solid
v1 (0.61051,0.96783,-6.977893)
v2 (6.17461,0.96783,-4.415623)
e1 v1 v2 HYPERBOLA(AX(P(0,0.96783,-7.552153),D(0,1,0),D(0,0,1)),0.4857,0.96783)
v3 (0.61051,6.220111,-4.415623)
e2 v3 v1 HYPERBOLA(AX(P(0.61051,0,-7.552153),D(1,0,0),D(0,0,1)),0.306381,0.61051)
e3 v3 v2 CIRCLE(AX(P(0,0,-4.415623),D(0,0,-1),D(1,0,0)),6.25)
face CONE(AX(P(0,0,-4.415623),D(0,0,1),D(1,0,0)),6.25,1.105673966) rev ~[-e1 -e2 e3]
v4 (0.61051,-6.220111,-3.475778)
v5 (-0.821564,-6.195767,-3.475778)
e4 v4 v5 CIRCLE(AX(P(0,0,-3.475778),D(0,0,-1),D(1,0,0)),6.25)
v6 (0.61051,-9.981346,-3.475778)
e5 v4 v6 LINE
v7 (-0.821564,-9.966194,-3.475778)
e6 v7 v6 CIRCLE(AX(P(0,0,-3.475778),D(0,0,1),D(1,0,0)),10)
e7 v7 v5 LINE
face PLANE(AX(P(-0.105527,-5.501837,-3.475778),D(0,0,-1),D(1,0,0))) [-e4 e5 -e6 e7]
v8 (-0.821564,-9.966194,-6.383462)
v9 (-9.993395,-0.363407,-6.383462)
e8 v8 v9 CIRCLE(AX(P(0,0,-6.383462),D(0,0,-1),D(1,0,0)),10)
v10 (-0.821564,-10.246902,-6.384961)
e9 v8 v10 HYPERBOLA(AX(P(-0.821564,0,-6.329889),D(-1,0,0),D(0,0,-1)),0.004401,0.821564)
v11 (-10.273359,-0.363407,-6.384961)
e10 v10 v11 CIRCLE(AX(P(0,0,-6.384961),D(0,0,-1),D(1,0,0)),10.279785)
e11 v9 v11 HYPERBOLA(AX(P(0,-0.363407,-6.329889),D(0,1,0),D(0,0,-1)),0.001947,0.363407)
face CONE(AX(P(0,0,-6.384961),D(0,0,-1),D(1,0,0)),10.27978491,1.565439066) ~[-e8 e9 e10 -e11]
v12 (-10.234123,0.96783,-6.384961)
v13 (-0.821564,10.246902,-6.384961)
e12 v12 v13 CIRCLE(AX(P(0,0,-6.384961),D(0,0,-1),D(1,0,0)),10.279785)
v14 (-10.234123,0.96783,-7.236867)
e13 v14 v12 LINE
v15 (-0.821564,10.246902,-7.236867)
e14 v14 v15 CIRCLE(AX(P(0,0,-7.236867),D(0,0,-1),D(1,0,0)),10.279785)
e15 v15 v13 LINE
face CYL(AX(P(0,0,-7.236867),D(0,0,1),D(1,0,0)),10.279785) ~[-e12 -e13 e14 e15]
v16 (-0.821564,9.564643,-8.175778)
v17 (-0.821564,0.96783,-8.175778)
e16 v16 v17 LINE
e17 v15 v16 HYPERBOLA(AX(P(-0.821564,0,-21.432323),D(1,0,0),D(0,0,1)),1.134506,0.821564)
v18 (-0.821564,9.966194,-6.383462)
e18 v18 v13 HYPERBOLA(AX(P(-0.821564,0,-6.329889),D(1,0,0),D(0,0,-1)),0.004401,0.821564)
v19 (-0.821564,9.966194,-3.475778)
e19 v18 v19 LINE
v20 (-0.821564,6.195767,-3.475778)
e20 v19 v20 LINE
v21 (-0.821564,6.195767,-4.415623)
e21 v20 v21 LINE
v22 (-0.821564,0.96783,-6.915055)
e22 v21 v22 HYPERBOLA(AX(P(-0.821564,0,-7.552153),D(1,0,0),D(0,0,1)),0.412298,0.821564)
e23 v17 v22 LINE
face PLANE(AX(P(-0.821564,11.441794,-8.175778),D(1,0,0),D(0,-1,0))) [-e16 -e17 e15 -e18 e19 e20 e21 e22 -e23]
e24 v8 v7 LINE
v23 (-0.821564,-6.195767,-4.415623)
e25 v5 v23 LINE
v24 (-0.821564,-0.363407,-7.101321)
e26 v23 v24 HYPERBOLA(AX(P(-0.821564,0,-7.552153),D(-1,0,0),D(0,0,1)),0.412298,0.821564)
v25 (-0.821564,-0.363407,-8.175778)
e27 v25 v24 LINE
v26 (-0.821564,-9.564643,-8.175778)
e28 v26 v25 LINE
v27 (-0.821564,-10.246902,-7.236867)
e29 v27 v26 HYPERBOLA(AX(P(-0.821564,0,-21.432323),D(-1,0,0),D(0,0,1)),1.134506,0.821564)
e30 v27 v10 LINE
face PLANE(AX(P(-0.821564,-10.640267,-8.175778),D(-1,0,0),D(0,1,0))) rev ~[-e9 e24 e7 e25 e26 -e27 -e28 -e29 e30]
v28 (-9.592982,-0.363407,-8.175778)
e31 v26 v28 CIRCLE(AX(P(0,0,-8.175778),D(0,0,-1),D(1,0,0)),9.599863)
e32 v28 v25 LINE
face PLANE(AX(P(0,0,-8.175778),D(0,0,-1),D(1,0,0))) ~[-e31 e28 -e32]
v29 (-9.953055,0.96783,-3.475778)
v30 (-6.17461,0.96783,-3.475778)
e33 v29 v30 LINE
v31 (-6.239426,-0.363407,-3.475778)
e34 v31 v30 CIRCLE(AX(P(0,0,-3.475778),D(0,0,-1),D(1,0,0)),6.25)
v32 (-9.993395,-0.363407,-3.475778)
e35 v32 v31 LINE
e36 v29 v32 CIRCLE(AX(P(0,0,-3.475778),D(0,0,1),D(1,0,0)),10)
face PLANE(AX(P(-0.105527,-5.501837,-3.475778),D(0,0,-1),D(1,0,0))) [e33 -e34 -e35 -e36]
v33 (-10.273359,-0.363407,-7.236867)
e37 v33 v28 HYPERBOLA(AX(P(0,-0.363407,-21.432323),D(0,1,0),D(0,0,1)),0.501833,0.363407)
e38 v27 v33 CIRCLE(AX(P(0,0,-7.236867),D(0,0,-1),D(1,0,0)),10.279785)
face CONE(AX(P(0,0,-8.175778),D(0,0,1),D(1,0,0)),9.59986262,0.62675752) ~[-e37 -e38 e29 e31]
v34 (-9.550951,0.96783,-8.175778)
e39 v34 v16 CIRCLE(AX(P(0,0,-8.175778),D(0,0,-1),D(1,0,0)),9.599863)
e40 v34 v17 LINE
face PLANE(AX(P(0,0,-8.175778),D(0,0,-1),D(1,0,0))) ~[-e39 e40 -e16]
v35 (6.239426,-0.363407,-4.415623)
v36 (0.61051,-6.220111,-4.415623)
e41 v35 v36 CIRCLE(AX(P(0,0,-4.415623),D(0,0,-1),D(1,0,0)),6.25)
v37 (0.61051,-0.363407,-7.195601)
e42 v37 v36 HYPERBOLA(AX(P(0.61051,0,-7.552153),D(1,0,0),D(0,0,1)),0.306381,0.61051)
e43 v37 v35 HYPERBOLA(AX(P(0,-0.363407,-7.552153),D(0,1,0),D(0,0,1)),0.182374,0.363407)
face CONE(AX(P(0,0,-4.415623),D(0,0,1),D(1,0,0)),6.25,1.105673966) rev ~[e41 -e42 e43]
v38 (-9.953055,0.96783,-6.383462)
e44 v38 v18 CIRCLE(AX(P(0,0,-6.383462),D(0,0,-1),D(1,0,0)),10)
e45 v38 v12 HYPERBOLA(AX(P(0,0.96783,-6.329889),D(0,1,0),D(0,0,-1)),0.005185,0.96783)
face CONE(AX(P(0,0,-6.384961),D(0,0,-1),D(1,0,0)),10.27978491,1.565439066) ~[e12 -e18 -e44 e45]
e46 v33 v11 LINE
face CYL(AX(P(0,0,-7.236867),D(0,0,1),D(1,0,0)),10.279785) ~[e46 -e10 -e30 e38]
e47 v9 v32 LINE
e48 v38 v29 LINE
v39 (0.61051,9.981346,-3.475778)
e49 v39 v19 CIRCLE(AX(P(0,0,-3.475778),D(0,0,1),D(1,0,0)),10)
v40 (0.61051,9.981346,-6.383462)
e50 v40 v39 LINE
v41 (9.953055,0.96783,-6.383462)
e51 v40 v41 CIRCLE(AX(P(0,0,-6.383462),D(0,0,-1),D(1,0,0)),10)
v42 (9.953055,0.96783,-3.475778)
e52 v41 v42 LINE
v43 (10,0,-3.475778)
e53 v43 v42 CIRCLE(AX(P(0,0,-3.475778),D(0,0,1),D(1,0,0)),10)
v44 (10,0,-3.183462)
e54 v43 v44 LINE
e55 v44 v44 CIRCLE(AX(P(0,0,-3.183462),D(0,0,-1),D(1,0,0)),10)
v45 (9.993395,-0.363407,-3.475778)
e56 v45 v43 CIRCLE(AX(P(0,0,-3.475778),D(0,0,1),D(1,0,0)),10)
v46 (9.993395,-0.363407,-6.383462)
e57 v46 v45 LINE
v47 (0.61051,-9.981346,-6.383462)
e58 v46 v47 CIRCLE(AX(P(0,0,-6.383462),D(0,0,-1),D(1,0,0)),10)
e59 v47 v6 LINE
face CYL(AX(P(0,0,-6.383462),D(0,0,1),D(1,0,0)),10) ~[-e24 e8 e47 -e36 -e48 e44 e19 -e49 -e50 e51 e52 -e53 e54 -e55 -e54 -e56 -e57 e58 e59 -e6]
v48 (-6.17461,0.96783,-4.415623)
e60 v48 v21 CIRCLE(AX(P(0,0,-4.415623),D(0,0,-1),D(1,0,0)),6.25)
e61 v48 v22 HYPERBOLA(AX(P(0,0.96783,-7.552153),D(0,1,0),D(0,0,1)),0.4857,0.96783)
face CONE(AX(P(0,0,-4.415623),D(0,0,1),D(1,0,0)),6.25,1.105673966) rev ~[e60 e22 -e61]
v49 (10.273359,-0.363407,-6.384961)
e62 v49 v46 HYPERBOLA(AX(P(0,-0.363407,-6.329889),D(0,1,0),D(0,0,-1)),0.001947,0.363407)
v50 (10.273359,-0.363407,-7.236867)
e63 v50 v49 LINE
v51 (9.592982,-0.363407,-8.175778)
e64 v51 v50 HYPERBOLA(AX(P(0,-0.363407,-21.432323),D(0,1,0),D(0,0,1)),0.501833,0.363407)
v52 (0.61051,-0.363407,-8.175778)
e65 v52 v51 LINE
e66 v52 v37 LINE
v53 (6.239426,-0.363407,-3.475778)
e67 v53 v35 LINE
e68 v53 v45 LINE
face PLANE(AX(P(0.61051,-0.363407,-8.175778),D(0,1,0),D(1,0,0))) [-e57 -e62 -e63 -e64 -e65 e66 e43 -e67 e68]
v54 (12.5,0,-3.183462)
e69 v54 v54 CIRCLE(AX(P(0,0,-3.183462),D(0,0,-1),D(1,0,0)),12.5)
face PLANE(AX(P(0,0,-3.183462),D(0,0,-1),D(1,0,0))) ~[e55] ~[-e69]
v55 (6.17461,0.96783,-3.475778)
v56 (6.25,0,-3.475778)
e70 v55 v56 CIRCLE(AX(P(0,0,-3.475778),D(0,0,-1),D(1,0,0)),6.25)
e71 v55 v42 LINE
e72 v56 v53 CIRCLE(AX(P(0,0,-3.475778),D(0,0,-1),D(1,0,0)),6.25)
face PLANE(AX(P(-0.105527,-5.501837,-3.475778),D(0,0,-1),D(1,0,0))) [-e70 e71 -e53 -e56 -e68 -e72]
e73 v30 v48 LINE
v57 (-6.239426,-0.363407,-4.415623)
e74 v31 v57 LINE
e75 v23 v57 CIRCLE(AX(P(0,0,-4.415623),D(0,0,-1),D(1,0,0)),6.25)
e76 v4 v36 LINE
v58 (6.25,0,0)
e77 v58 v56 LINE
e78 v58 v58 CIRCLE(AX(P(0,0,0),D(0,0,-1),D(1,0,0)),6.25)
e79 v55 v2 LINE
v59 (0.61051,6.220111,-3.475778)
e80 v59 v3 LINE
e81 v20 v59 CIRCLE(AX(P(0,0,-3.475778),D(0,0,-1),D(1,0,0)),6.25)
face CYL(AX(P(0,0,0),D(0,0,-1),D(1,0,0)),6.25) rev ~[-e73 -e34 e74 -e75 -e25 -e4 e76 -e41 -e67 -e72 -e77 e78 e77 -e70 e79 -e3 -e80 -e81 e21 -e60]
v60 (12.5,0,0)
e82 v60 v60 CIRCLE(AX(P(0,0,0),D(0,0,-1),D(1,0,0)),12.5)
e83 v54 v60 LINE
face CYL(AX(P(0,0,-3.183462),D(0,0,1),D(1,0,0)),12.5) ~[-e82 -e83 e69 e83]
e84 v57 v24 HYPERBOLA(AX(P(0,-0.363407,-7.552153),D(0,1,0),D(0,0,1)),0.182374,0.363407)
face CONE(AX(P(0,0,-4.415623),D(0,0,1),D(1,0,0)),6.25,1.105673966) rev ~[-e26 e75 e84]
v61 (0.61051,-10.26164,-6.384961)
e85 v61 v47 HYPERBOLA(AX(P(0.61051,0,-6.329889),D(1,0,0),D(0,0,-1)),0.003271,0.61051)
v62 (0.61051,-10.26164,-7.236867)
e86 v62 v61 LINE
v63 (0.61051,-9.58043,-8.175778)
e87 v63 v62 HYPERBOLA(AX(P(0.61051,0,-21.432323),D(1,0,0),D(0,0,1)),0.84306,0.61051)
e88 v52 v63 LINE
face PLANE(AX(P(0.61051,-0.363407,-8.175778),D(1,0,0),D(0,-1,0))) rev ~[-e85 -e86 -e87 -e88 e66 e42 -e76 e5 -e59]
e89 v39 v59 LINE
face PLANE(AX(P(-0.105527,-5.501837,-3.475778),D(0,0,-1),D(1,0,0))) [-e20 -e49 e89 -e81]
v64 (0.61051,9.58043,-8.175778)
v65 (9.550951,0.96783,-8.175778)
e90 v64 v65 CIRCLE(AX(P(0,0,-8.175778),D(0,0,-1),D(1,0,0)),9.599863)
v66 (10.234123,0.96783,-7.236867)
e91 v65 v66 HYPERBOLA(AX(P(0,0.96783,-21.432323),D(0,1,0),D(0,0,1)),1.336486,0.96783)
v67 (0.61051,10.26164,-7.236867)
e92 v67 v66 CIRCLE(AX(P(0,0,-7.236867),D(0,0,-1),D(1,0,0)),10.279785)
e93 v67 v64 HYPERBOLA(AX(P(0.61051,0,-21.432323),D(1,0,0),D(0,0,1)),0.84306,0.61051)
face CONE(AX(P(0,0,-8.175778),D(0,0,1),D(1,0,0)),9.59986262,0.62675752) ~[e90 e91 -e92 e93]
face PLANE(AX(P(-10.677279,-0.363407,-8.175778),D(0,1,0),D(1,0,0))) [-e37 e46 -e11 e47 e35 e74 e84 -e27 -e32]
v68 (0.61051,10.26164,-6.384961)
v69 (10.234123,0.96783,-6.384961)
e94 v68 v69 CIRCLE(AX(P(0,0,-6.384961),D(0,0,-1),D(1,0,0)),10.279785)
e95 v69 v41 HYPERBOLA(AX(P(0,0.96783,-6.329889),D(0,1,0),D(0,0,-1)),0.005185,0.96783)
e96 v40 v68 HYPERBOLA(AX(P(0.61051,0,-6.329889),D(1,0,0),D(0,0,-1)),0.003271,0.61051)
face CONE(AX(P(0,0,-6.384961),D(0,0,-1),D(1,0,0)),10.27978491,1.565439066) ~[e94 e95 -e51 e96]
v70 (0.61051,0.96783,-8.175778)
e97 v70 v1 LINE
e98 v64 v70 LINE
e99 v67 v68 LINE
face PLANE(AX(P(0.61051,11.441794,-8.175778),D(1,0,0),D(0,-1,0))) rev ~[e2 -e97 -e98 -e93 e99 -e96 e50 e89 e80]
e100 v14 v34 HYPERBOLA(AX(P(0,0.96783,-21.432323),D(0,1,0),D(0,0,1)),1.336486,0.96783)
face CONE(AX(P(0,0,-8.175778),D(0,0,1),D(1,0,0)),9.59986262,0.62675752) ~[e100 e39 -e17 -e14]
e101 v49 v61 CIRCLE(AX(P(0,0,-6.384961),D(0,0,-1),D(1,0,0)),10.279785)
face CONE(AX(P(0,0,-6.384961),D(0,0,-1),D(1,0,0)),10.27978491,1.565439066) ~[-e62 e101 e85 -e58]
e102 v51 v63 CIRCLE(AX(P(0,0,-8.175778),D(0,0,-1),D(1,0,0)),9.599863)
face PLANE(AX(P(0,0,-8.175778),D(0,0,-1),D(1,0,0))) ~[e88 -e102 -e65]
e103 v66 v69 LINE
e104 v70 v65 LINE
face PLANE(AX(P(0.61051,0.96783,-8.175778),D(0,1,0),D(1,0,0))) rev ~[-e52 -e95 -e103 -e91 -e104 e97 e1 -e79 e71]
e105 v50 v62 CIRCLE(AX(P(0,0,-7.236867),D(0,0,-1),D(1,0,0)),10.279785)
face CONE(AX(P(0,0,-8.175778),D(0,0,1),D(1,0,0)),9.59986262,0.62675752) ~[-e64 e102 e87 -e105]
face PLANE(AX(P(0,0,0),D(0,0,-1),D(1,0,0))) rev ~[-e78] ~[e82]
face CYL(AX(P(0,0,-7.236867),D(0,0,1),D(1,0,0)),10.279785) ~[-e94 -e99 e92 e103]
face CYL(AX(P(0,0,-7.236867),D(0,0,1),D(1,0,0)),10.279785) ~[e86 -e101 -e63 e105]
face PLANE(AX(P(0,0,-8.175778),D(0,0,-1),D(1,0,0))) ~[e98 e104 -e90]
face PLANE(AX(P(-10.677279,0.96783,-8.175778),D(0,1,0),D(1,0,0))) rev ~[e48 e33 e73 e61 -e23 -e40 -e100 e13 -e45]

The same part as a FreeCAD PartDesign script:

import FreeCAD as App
import Part
import Sketcher

V = App.Vector


def add_polygon(sketch, points):
    """Adds a closed chain of lines whose ends are joined by coincident constraints."""
    first, n = sketch.GeometryCount, len(points)
    for a, b in zip(points, points[1:] + points[:1]):
        sketch.addGeometry(Part.LineSegment(App.Vector(*a, 0), App.Vector(*b, 0)), False)
    for i in range(n):
        sketch.addConstraint(Sketcher.Constraint("Coincident", first + i, 2, first + (i + 1) % n, 1))

doc = App.newDocument("Part")
body = doc.addObject("PartDesign::Body", "Body")

# Sketch on XZ plane
sketch1 = doc.addObject("Sketcher::SketchObject", "Sketch")
body.addObject(sketch1)
sketch1.AttachmentSupport = (doc.XZ_Plane, [""])
sketch1.MapMode = "FlatFace"
add_polygon(sketch1, [(12.5, -3.18), (12.5, 0), (6.25, 0), (6.25, -4.42), (0, -7.55), (0, -8.18), (9.6, -8.18), (10.28, -7.24), (10.28, -6.38), (10, -6.38), (10, -3.18)])  # lines 0-10
sketch1.addConstraint(Sketcher.Constraint("Vertical", 0))
sketch1.addConstraint(Sketcher.Constraint("Horizontal", 1))
sketch1.addConstraint(Sketcher.Constraint("Vertical", 2))
sketch1.addConstraint(Sketcher.Constraint("Vertical", 4))
sketch1.addConstraint(Sketcher.Constraint("Horizontal", 5))
sketch1.addConstraint(Sketcher.Constraint("Vertical", 7))
sketch1.addConstraint(Sketcher.Constraint("Vertical", 9))
sketch1.addConstraint(Sketcher.Constraint("Horizontal", 10))
sketch1.addConstraint(Sketcher.Constraint("PointOnObject", 0, 2, -1))
sketch1.addConstraint(Sketcher.Constraint("PointOnObject", 3, 2, -2))
sketch1.addConstraint(Sketcher.Constraint("DistanceX", 10, 1, 10, 2, 2.5))
sketch1.addConstraint(Sketcher.Constraint("DistanceY", 9, 1, 9, 2, 3.2))
sketch1.addConstraint(Sketcher.Constraint("DistanceX", -1, 1, 8, 2, 10.0))
sketch1.addConstraint(Sketcher.Constraint("DistanceX", 1, 2, 1, 1, 6.25))
sketch1.addConstraint(Sketcher.Constraint("DistanceY", 7, 2, 8, 2, 0.001499))
sketch1.addConstraint(Sketcher.Constraint("Distance", 8, 0.279789))
sketch1.addConstraint(Sketcher.Constraint("DistanceX", 5, 1, 5, 2, 9.599863))
sketch1.addConstraint(Sketcher.Constraint("DistanceY", 0, 1, 0, 2, 3.183462))
sketch1.addConstraint(Sketcher.Constraint("DistanceY", 2, 2, 2, 1, 4.415623))
sketch1.addConstraint(Sketcher.Constraint("DistanceY", 4, 2, 4, 1, 0.623625))
sketch1.addConstraint(Sketcher.Constraint("DistanceY", 7, 1, 7, 2, 0.851906))
sketch1.addConstraint(Sketcher.Constraint("DistanceY", 4, 2, -1, 1, 8.175778))
revolution = doc.addObject("PartDesign::Revolution", "Revolution")
body.addObject(revolution)
revolution.Profile = sketch1
revolution.ReferenceAxis = (sketch1, ["V_Axis"])
revolution.Angle = 360

# Sketch on XY plane
sketch2 = doc.addObject("Sketcher::SketchObject", "Sketch001")
body.addObject(sketch2)
sketch2.AttachmentSupport = (doc.XY_Plane, [""])
sketch2.MapMode = "FlatFace"
sketch2.AttachmentOffset = App.Placement(V(0, 0, -8.175778), App.Rotation())
add_polygon(sketch2, [(-0.8, -10.6), (-0.8, -0.4), (-10.7, -0.4), (-10.7, 1), (-0.8, 1), (-0.8, 11.4), (0.6, 11.4), (0.6, 1), (11, 1), (11, -0.4), (0.6, -0.4), (0.6, -10.6)])  # lines 0-11
sketch2.addConstraint(Sketcher.Constraint("Vertical", 0))
sketch2.addConstraint(Sketcher.Constraint("Horizontal", 1))
sketch2.addConstraint(Sketcher.Constraint("Vertical", 2))
sketch2.addConstraint(Sketcher.Constraint("Horizontal", 3))
sketch2.addConstraint(Sketcher.Constraint("Vertical", 4))
sketch2.addConstraint(Sketcher.Constraint("Horizontal", 5))
sketch2.addConstraint(Sketcher.Constraint("Vertical", 6))
sketch2.addConstraint(Sketcher.Constraint("Horizontal", 7))
sketch2.addConstraint(Sketcher.Constraint("Vertical", 8))
sketch2.addConstraint(Sketcher.Constraint("Horizontal", 9))
sketch2.addConstraint(Sketcher.Constraint("Vertical", 10))
sketch2.addConstraint(Sketcher.Constraint("Horizontal", 11))
sketch2.addConstraint(Sketcher.Constraint("Horizontal", 3, 2, 6, 2))
sketch2.addConstraint(Sketcher.Constraint("Horizontal", 1, 2, 8, 2))
sketch2.addConstraint(Sketcher.Constraint("Vertical", 0, 2, 3, 2))
sketch2.addConstraint(Sketcher.Constraint("Vertical", 6, 2, 9, 2))
sketch2.addConstraint(Sketcher.Constraint("DistanceX", 7, 1, 7, 2, 10.386419))
sketch2.addConstraint(Sketcher.Constraint("DistanceY", 0, 1, 0, 2, 10.27686))
sketch2.addConstraint(Sketcher.Constraint("DistanceY", 0, 2, 4, 2, 11.805202))
sketch2.addConstraint(Sketcher.Constraint("DistanceX", 1, 2, 1, 1, 9.855715))
sketch2.addConstraint(Sketcher.Constraint("DistanceX", 5, 1, 5, 2, 1.432074))
sketch2.addConstraint(Sketcher.Constraint("DistanceY", 2, 1, 2, 2, 1.331237))
sketch2.addConstraint(Sketcher.Constraint("DistanceX", 1, 2, -1, 1, 10.677279))
sketch2.addConstraint(Sketcher.Constraint("DistanceY", -1, 1, 2, 2, 0.96783))
pocket1 = doc.addObject("PartDesign::Pocket", "Pocket")
body.addObject(pocket1)
pocket1.Profile = sketch2
pocket1.Length = 4.7
pocket1.Reversed = True

doc.recompute()
